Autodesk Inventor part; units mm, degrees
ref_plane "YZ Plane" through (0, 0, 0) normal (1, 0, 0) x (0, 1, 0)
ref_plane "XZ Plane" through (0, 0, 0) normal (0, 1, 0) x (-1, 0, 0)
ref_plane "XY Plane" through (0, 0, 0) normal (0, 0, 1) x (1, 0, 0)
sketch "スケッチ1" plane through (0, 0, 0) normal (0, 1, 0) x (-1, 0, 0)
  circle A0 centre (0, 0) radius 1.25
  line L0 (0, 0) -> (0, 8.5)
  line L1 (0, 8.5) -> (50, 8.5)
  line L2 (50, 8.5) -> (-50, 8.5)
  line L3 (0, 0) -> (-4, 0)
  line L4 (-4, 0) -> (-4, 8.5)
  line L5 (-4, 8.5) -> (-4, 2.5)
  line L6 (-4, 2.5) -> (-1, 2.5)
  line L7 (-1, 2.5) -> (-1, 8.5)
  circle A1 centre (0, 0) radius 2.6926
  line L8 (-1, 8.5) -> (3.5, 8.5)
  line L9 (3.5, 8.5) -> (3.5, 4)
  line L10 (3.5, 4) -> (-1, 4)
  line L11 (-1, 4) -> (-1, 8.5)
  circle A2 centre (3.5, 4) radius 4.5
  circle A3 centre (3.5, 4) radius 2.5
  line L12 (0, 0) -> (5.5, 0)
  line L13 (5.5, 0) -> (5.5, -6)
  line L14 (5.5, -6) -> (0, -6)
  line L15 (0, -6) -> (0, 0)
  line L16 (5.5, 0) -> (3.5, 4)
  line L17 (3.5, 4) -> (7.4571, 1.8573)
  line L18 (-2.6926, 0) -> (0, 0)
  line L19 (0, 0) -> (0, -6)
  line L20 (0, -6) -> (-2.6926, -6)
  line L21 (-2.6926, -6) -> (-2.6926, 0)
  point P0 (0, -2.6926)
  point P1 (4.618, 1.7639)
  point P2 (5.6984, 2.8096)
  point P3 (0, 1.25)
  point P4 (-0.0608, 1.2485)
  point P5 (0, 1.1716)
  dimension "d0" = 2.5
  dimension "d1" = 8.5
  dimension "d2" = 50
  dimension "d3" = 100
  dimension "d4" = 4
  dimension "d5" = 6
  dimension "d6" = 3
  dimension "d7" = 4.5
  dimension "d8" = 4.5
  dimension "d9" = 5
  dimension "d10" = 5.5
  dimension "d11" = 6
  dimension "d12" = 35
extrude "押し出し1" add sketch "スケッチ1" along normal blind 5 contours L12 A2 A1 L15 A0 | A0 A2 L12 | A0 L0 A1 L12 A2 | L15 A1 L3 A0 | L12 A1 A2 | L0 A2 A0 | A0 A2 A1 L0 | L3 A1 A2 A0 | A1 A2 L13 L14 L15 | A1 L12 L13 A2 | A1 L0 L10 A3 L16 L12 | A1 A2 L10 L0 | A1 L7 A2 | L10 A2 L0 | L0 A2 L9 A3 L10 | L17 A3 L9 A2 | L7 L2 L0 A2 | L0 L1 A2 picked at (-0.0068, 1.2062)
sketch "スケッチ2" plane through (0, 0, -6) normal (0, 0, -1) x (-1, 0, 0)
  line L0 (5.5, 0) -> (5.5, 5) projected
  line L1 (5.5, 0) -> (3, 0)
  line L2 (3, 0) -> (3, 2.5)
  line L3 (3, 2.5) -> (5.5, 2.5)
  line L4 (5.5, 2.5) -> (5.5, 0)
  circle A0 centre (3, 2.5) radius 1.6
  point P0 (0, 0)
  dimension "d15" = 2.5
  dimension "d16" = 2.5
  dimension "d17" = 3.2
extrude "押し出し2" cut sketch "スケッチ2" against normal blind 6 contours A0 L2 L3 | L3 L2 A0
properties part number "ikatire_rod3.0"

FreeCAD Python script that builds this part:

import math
import FreeCAD as App
import Part
import Sketcher

V = App.Vector
Q = App.Units.Quantity

doc = App.newDocument("Part")
body = doc.addObject("PartDesign::Body", "Body")

sketch1 = body.newObject("Sketcher::SketchObject", "Sketch")
sketch1.AttachmentSupport = (doc.getObject("XZ_Plane"), [""])
sketch1.MapMode = "FlatFace"
sketch1.addGeometry(Part.LineSegment(V(0, -2.69, 0), V(0, -6, 0)), False)
sketch1.addGeometry(Part.LineSegment(V(0, -6, 0), V(-5.5, -6, 0)), False)
sketch1.addGeometry(Part.LineSegment(V(-5.5, -6, 0), V(-5.5, 0, 0)), False)
sketch1.addGeometry(Part.LineSegment(V(-5.5, 0, 0), V(-4.62, 1.76, 0)), False)
sketch1.addGeometry(Part.ArcOfCircle(Part.Circle(V(-3.5, 4, 0), V(0, 0, 1), 2.5), math.radians(-117), math.radians(208)), False)
sketch1.addGeometry(Part.LineSegment(V(-5.7, 2.81, 0), V(-7.46, 1.86, 0)), False)
sketch1.addGeometry(Part.ArcOfCircle(Part.Circle(V(-3.5, 4, 0), V(0, 0, 1), 4.5), math.radians(90), math.radians(208)), False)
sketch1.addGeometry(Part.LineSegment(V(-3.5, 8.5, 0), V(1, 8.5, 0)), False)
sketch1.addGeometry(Part.LineSegment(V(1, 8.5, 0), V(1, 2.5, 0)), False)
sketch1.addGeometry(Part.ArcOfCircle(Part.Circle(V(0, 0, 0), V(0, 0, 1), 2.69), math.radians(-90), math.radians(68)), False)
sketch1.addGeometry(Part.ArcOfCircle(Part.Circle(V(-3.5, 4, 0), V(0, 0, 1), 4.5), math.radians(-38.94), math.radians(-37.69)), False)
sketch1.addGeometry(Part.LineSegment(V(0, 1.17, 0), V(0, 1.25, 0)), False)
sketch1.addGeometry(Part.ArcOfCircle(Part.Circle(V(0, 0, 0), V(0, 0, 1), 1.25), math.radians(90), math.radians(447)), False)
sketch1.addConstraint(Sketcher.Constraint("Coincident", 0, 2, 1, 1))
sketch1.addConstraint(Sketcher.Constraint("Coincident", 1, 2, 2, 1))
sketch1.addConstraint(Sketcher.Constraint("Coincident", 2, 2, 3, 1))
sketch1.addConstraint(Sketcher.Constraint("Coincident", 3, 2, 4, 1))
sketch1.addConstraint(Sketcher.Constraint("Coincident", 4, 2, 5, 1))
sketch1.addConstraint(Sketcher.Constraint("Coincident", 5, 2, 6, 2))
sketch1.addConstraint(Sketcher.Constraint("Tangent", 6, 1, 7, 1))
sketch1.addConstraint(Sketcher.Constraint("Coincident", 7, 2, 8, 1))
sketch1.addConstraint(Sketcher.Constraint("Coincident", 8, 2, 9, 2))
sketch1.addConstraint(Sketcher.Constraint("Coincident", 9, 1, 0, 1))
sketch1.addConstraint(Sketcher.Constraint("Coincident", 10, 1, 11, 1))
sketch1.addConstraint(Sketcher.Constraint("Coincident", 11, 2, 12, 1))
sketch1.addConstraint(Sketcher.Constraint("Coincident", 12, 2, 10, 2))
sketch1.addConstraint(Sketcher.Constraint("Vertical", 0))
sketch1.addConstraint(Sketcher.Constraint("Horizontal", 1))
sketch1.addConstraint(Sketcher.Constraint("Vertical", 2))
sketch1.addConstraint(Sketcher.Constraint("Horizontal", 7))
sketch1.addConstraint(Sketcher.Constraint("Vertical", 8))
sketch1.addConstraint(Sketcher.Constraint("Vertical", 11))
sketch1.addConstraint(Sketcher.Constraint("Coincident", 9, 3, -1, 1))
sketch1.addConstraint(Sketcher.Constraint("Coincident", 12, 3, -1, 1))
sketch1.addConstraint(Sketcher.Constraint("Coincident", 6, 3, 4, 3))
sketch1.addConstraint(Sketcher.Constraint("Coincident", 10, 3, 4, 3))
sketch1.addConstraint(Sketcher.Constraint("Equal", 6, 10))
sketch1.addConstraint(Sketcher.Constraint("PointOnObject", 0, 2, -2))
sketch1.addConstraint(Sketcher.Constraint("PointOnObject", 2, 2, -1))
sketch1.addConstraint(Sketcher.Constraint("PointOnObject", 10, 1, -2))
sketch1.addConstraint(Sketcher.Constraint("Equal", 2, 8))
sketch1.addConstraint(Sketcher.Constraint("Radius", 4, Q("2.5 mm")))
sketch1.addConstraint(Sketcher.Constraint("Radius", 6, Q("4.5 mm")))
sketch1.addConstraint(Sketcher.Constraint("DistanceY", 2, 1, 2, 2, Q("6 mm")))
sketch1.addConstraint(Sketcher.Constraint("Radius", 12, Q("1.25 mm")))
sketch1.addConstraint(Sketcher.Constraint("DistanceX", 1, 2, 1, 1, Q("5.5 mm")))
sketch1.addConstraint(Sketcher.Constraint("DistanceX", 7, 1, 7, 2, Q("4.5 mm")))
sketch1.addConstraint(Sketcher.Constraint("DistanceY", -1, 1, 4, 3, Q("4 mm")))
sketch1.addConstraint(Sketcher.Constraint("DistanceX", -1, 1, 7, 2, Q("1 mm")))
sketch1.addConstraint(Sketcher.Constraint("DistanceX", 3, 2, -1, 1, Q("4.618 mm")))
sketch1.addConstraint(Sketcher.Constraint("DistanceX", 5, 2, -1, 1, Q("7.457 mm")))
sketch1.addConstraint(Sketcher.Constraint("DistanceX", 4, 2, -1, 1, Q("5.6984 mm")))
pad1 = body.newObject("PartDesign::Pad", "Pad")
pad1.Profile = sketch1
pad1.Length = 5
pad1.Reversed = True

sketch2 = body.newObject("Sketcher::SketchObject", "Sketch001")
sketch2.AttachmentSupport = (doc.getObject("XY_Plane"), [""])
sketch2.MapMode = "FlatFace"
sketch2.AttachmentOffset = App.Placement(V(0, 0, -6), App.Rotation())
sketch2.addGeometry(Part.Circle(V(-3, 2.5, 0), V(0, 0, 1), 1.6), False)
sketch2.addConstraint(Sketcher.Constraint("Diameter", 0, Q("3.2 mm")))
sketch2.addConstraint(Sketcher.Constraint("DistanceY", -1, 1, 0, 3, Q("2.5 mm")))
sketch2.addConstraint(Sketcher.Constraint("DistanceX", 0, 3, -1, 1, Q("3 mm")))
pocket1 = body.newObject("PartDesign::Pocket", "Pocket")
pocket1.Profile = sketch2
pocket1.Length = 6
pocket1.Reversed = True

doc.recompute()
